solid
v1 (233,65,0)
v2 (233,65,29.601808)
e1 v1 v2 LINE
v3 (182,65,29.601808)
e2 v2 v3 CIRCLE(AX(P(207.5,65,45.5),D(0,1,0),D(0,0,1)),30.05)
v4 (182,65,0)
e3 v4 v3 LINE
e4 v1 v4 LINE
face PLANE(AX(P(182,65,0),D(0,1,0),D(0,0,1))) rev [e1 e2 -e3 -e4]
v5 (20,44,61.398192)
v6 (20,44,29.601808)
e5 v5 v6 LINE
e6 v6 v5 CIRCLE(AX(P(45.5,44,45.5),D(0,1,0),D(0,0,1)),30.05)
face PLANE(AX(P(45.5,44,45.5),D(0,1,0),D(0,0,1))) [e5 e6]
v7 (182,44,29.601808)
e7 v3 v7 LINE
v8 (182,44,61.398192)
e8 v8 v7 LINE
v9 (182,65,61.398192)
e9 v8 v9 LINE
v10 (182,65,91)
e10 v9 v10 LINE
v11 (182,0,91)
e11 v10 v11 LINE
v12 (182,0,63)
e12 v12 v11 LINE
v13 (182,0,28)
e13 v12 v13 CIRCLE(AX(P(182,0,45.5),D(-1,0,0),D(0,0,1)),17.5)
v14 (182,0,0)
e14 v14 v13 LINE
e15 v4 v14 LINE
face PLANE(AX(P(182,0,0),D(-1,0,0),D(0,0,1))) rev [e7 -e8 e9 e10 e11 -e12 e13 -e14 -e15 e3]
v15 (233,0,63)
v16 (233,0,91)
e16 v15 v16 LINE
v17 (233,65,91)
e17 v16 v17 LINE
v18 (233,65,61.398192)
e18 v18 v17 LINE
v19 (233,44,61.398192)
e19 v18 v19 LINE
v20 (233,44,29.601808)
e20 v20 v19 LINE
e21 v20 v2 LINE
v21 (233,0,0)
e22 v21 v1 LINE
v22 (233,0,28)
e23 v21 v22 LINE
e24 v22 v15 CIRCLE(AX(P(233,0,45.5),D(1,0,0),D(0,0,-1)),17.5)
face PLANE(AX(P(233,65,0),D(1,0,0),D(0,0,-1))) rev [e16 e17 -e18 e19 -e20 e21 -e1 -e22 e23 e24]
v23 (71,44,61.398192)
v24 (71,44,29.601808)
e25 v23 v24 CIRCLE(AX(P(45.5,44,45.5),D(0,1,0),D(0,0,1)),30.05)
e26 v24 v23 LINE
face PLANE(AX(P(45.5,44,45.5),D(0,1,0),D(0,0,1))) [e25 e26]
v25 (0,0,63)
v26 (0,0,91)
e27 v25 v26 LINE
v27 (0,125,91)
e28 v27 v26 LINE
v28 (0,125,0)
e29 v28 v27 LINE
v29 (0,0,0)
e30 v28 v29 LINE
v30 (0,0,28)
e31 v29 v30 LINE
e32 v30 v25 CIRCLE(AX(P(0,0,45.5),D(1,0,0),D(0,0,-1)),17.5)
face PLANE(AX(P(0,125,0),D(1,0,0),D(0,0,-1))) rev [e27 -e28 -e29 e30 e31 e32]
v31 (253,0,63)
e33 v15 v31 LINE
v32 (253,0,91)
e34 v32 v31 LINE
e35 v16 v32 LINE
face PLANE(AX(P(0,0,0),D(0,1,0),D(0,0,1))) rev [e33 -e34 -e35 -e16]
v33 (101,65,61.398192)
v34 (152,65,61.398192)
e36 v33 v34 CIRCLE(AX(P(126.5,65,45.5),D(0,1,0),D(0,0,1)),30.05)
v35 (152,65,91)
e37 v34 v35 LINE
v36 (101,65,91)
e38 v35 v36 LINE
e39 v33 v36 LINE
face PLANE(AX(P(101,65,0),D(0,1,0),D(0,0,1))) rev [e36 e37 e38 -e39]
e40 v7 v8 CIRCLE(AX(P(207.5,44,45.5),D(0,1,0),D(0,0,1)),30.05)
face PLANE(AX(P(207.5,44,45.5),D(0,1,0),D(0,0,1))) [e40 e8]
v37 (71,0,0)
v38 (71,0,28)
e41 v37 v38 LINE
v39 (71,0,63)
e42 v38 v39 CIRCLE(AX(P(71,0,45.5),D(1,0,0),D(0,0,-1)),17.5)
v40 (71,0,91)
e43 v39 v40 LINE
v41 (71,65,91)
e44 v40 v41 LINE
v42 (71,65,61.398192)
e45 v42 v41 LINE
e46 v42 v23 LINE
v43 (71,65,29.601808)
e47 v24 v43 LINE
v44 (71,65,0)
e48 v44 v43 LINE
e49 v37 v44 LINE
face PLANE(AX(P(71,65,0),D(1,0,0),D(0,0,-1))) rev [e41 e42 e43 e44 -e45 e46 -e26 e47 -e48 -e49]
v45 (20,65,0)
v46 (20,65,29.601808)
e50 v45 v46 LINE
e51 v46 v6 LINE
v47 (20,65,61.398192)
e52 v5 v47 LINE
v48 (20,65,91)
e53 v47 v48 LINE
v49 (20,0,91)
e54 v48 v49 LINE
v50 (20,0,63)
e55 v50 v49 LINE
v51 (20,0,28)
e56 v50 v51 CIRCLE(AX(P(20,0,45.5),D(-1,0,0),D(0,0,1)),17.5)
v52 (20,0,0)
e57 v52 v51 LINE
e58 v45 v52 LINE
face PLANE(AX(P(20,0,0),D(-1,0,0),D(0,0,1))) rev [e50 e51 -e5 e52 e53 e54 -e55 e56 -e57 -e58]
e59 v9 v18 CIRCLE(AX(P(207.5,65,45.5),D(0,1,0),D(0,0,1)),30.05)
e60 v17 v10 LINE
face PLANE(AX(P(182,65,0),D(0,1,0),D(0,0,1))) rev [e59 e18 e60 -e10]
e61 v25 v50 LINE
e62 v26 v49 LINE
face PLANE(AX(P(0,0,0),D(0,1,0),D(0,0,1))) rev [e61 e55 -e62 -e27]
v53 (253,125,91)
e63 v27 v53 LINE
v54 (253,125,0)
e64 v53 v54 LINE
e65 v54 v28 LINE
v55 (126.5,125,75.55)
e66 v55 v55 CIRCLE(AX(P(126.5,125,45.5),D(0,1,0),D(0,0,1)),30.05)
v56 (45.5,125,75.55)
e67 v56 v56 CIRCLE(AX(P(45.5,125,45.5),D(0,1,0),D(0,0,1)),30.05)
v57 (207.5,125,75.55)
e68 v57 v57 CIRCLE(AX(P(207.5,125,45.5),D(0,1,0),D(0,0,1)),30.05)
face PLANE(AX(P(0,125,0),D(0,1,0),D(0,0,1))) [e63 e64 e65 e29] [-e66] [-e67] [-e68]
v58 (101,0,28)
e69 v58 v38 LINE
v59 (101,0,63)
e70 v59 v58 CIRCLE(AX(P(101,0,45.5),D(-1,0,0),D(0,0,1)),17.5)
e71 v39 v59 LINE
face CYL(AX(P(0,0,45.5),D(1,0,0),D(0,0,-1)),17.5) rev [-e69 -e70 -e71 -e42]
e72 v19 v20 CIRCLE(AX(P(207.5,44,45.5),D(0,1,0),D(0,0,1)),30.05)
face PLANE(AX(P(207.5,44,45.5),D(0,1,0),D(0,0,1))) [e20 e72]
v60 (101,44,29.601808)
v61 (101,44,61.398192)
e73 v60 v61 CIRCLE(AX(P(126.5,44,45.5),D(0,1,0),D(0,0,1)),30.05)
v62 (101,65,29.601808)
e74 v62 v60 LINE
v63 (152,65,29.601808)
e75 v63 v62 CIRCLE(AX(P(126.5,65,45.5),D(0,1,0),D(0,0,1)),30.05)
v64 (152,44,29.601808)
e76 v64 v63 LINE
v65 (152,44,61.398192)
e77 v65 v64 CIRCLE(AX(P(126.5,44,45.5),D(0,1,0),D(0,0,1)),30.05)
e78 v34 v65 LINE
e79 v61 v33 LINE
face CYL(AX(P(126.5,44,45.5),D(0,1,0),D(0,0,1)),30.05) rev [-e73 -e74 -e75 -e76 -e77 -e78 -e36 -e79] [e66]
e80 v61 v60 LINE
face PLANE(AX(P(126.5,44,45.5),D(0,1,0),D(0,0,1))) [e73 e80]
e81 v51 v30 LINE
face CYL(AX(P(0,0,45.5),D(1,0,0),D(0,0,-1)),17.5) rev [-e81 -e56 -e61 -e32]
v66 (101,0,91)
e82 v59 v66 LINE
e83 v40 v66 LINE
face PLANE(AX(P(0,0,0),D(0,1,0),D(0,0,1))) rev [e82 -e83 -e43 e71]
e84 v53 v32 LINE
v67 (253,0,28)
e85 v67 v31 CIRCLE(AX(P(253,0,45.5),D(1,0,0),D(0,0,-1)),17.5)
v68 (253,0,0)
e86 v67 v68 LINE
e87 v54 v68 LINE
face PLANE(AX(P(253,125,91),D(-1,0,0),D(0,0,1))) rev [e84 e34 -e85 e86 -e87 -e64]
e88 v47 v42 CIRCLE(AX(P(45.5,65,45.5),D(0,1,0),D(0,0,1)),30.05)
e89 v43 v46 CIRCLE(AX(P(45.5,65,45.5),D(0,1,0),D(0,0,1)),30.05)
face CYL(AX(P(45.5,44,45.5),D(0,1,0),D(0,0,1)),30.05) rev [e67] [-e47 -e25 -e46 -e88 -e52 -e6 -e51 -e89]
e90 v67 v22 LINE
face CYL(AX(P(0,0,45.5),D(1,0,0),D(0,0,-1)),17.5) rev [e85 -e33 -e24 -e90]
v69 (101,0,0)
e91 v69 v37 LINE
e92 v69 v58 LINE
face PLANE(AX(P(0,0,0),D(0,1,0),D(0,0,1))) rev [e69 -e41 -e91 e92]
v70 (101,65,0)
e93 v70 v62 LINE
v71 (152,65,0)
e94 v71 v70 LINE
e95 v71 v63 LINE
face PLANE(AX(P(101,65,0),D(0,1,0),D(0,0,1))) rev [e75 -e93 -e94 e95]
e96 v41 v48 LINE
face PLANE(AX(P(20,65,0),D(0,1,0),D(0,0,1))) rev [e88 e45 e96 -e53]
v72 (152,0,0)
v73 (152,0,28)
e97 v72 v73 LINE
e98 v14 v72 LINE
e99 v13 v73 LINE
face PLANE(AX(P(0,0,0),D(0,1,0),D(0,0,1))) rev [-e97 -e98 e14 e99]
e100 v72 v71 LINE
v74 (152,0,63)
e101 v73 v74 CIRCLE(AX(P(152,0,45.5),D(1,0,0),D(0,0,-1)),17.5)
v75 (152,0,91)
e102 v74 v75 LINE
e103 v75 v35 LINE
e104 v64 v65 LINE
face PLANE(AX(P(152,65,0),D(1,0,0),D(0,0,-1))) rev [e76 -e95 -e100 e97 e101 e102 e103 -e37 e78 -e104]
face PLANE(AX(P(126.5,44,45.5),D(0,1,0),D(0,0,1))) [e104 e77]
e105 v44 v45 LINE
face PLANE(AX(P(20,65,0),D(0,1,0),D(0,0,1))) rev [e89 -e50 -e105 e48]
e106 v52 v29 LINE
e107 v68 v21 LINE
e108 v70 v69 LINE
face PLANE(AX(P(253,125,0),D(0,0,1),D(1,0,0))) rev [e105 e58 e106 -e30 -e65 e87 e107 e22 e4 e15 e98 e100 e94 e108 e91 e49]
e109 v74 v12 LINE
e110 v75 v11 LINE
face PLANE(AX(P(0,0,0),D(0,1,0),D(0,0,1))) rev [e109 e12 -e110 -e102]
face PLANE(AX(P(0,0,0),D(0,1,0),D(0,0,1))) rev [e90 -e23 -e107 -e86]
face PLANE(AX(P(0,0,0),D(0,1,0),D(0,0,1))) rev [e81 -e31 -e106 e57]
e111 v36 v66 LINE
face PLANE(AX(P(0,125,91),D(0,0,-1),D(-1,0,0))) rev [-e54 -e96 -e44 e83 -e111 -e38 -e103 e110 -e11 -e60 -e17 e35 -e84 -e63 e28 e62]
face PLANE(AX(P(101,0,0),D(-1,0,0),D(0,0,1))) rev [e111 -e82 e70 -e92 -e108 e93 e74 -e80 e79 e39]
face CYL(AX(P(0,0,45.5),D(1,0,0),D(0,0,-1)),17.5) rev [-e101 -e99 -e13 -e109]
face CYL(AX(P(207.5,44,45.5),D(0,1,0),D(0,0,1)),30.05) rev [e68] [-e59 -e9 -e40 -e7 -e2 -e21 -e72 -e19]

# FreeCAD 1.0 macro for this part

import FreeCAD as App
import Part
import Sketcher
from FreeCAD import Vector

doc = App.newDocument("Part")
params = doc.addObject("Spreadsheet::Sheet", "Params")
for row, (alias, value) in enumerate([
    ("sketch1_width", "253 mm"),
    ("sketch1_height", "91 mm"),
    ("pad1_length", "125 mm"),
    ("sketch2_width", "51 mm"),
    ("sketch2_height", "65 mm"),
    ("sketch3_diameter", "60.1 mm"),
    ("pocket2_length", "81 mm"),
    ("sketch4_diameter", "35 mm"),
], start=1):
    params.set(f"A{row}", alias)
    params.set(f"B{row}", "=" + value)
    params.setAlias(f"B{row}", alias)

body = doc.addObject("PartDesign::Body", "Body")

# Sketch on XZ plane
sketch1 = body.newObject("Sketcher::SketchObject", "Sketch")
sketch1.AttachmentSupport = (doc.getObject("XZ_Plane"), [""])
sketch1.MapMode = "FlatFace"
sketch1.addGeometry([
    Part.LineSegment(Vector(0, 0, 0), Vector(0, 91, 0)),
    Part.LineSegment(Vector(0, 91, 0), Vector(253, 91, 0)),
    Part.LineSegment(Vector(253, 91, 0), Vector(253, 0, 0)),
    Part.LineSegment(Vector(253, 0, 0), Vector(0, 0, 0)),
], False)
sketch1.addConstraint([
    Sketcher.Constraint("Coincident", 0, 2, 1, 1),
    Sketcher.Constraint("Coincident", 1, 2, 2, 1),
    Sketcher.Constraint("Coincident", 2, 2, 3, 1),
    Sketcher.Constraint("Coincident", 3, 2, 0, 1),
    Sketcher.Constraint("Vertical", 0),
    Sketcher.Constraint("Horizontal", 1),
    Sketcher.Constraint("Vertical", 2),
    Sketcher.Constraint("Horizontal", 3),
    Sketcher.Constraint("Coincident", 3, 2, -1, 1),
    Sketcher.Constraint("DistanceX", 1, 1, 1, 2, 253.0),
    Sketcher.Constraint("DistanceY", 0, 1, 0, 2, 91.0),
])
sketch1.setExpression("Constraints[9]", "Params.sketch1_width")
sketch1.setExpression("Constraints[10]", "Params.sketch1_height")
pad1 = body.newObject("PartDesign::Pad", "Pad")
pad1.Profile = sketch1
pad1.setExpression("Length", "Params.pad1_length")
pad1.Reversed = True

# Sketch on XY plane
sketch2 = body.newObject("Sketcher::SketchObject", "Sketch001")
sketch2.AttachmentSupport = (doc.getObject("XY_Plane"), [""])
sketch2.MapMode = "FlatFace"
sketch2.AttachmentOffset = App.Placement(Vector(0, 0, 91), App.Rotation())
sketch2.addGeometry([
    Part.LineSegment(Vector(20, 65, 0), Vector(20, 0, 0)),  # 0
    Part.LineSegment(Vector(20, 0, 0), Vector(71, 0, 0)),  # 1
    Part.LineSegment(Vector(71, 0, 0), Vector(71, 65, 0)),  # 2
    Part.LineSegment(Vector(71, 65, 0), Vector(20, 65, 0)),  # 3
    Part.LineSegment(Vector(101, 65, 0), Vector(101, 0, 0)),  # 4
    Part.LineSegment(Vector(101, 0, 0), Vector(152, 0, 0)),  # 5
    Part.LineSegment(Vector(152, 0, 0), Vector(152, 65, 0)),  # 6
    Part.LineSegment(Vector(152, 65, 0), Vector(101, 65, 0)),  # 7
    Part.LineSegment(Vector(182, 65, 0), Vector(182, 0, 0)),  # 8
    Part.LineSegment(Vector(182, 0, 0), Vector(233, 0, 0)),  # 9
    Part.LineSegment(Vector(233, 0, 0), Vector(233, 65, 0)),  # 10
    Part.LineSegment(Vector(233, 65, 0), Vector(182, 65, 0)),  # 11
], False)
sketch2.addConstraint([
    Sketcher.Constraint("Coincident", 0, 2, 1, 1),
    Sketcher.Constraint("Coincident", 1, 2, 2, 1),
    Sketcher.Constraint("Coincident", 2, 2, 3, 1),
    Sketcher.Constraint("Coincident", 3, 2, 0, 1),
    Sketcher.Constraint("Coincident", 4, 2, 5, 1),
    Sketcher.Constraint("Coincident", 5, 2, 6, 1),
    Sketcher.Constraint("Coincident", 6, 2, 7, 1),
    Sketcher.Constraint("Coincident", 7, 2, 4, 1),
    Sketcher.Constraint("Coincident", 8, 2, 9, 1),
    Sketcher.Constraint("Coincident", 9, 2, 10, 1),
    Sketcher.Constraint("Coincident", 10, 2, 11, 1),
    Sketcher.Constraint("Coincident", 11, 2, 8, 1),
    Sketcher.Constraint("Vertical", 0),
    Sketcher.Constraint("Horizontal", 1),
    Sketcher.Constraint("Vertical", 2),
    Sketcher.Constraint("Horizontal", 3),
    Sketcher.Constraint("Vertical", 4),
    Sketcher.Constraint("Horizontal", 5),
    Sketcher.Constraint("Vertical", 6),
    Sketcher.Constraint("Horizontal", 7),
    Sketcher.Constraint("Vertical", 8),
    Sketcher.Constraint("Horizontal", 9),
    Sketcher.Constraint("Vertical", 10),
    Sketcher.Constraint("Horizontal", 11),
    Sketcher.Constraint("PointOnObject", 0, 2, -1),
    Sketcher.Constraint("PointOnObject", 4, 2, -1),
    Sketcher.Constraint("PointOnObject", 8, 2, -1),
    Sketcher.Constraint("Horizontal", 3, 2, 6, 2),
    Sketcher.Constraint("Horizontal", 7, 2, 10, 2),
    Sketcher.Constraint("Equal", 3, 5),
    Sketcher.Constraint("Equal", 7, 9),
    Sketcher.Constraint("DistanceX", 1, 1, 1, 2, 51.0),
    Sketcher.Constraint("DistanceY", 0, 2, 0, 1, 65.0),
    Sketcher.Constraint("DistanceX", -1, 1, 0, 2, 20.0),
    Sketcher.Constraint("DistanceX", -1, 1, 4, 2, 101.0),
    Sketcher.Constraint("DistanceX", -1, 1, 8, 2, 182.0),
])
sketch2.setExpression("Constraints[31]", "Params.sketch2_width")
sketch2.setExpression("Constraints[32]", "Params.sketch2_height")
pocket1 = body.newObject("PartDesign::Pocket", "Pocket")
pocket1.Profile = sketch2
pocket1.Type = "ThroughAll"

# Sketch on XZ plane
sketch3 = body.newObject("Sketcher::SketchObject", "Sketch002")
sketch3.AttachmentSupport = (doc.getObject("XZ_Plane"), [""])
sketch3.MapMode = "FlatFace"
sketch3.AttachmentOffset = App.Placement(Vector(0, 0, -125), App.Rotation())
sketch3.addGeometry([
    Part.Circle(Vector(46, 46, 0), Vector(0, 0, 1), 30),
    Part.Circle(Vector(126, 46, 0), Vector(0, 0, 1), 30),
    Part.Circle(Vector(208, 46, 0), Vector(0, 0, 1), 30),
], False)
sketch3.addConstraint([
    Sketcher.Constraint("Equal", 0, 1),
    Sketcher.Constraint("Equal", 1, 2),
    Sketcher.Constraint("Horizontal", 0, 3, 1, 3),
    Sketcher.Constraint("Horizontal", 1, 3, 2, 3),
    Sketcher.Constraint("Diameter", 0, 60.1),
    Sketcher.Constraint("DistanceX", 0, 3, 1, 3, 81.0),
    Sketcher.Constraint("DistanceX", 1, 3, 2, 3, 81.0),
    Sketcher.Constraint("DistanceX", -1, 1, 0, 3, 45.5),
    Sketcher.Constraint("DistanceY", -1, 1, 0, 3, 45.5),
])
sketch3.setExpression("Constraints[4]", "Params.sketch3_diameter")
pocket2 = body.newObject("PartDesign::Pocket", "Pocket001")
pocket2.Profile = sketch3
pocket2.setExpression("Length", "Params.pocket2_length")
pocket2.Reversed = True

# Sketch on YZ plane
sketch4 = body.newObject("Sketcher::SketchObject", "Sketch003")
sketch4.AttachmentSupport = (doc.getObject("YZ_Plane"), [""])
sketch4.MapMode = "FlatFace"
sketch4.AttachmentOffset = App.Placement(Vector(0, 0, 253), App.Rotation())
sketch4.addGeometry(Part.Circle(Vector(0, 46, 0), Vector(0, 0, 1), 18), False)
sketch4.addConstraint([
    Sketcher.Constraint("PointOnObject", 0, 3, -2),
    Sketcher.Constraint("Diameter", 0, 35.0),
    Sketcher.Constraint("DistanceY", -1, 1, 0, 3, 45.5),
])
sketch4.setExpression("Constraints[1]", "Params.sketch4_diameter")
pocket3 = body.newObject("PartDesign::Pocket", "Pocket002")
pocket3.Profile = sketch4
pocket3.Type = "ThroughAll"

doc.recompute()
